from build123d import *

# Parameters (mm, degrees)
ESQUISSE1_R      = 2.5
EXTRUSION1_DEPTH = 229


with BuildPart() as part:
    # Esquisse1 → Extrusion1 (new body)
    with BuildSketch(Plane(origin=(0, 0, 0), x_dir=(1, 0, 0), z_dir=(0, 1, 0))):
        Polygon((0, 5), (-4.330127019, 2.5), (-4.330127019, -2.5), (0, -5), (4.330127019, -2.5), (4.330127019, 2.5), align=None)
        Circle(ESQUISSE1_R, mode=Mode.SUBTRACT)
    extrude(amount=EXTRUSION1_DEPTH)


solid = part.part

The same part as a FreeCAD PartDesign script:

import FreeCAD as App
import Part
import Sketcher

V = App.Vector
Q = App.Units.Quantity

doc = App.newDocument("Part")
body = doc.addObject("PartDesign::Body", "Body")

sketch1 = body.newObject("Sketcher::SketchObject", "Sketch")
sketch1.AttachmentSupport = (doc.getObject("XZ_Plane"), [""])
sketch1.MapMode = "FlatFace"
sketch1.addGeometry([
    Part.LineSegment(V(0, -5, 0), V(-4.330127, -2.5, 0)),
    Part.LineSegment(V(-4.330127, -2.5, 0), V(-4.330127, 2.5, 0)),
    Part.LineSegment(V(-4.330127, 2.5, 0), V(0, 5, 0)),
    Part.LineSegment(V(0, 5, 0), V(4.330127, 2.5, 0)),
    Part.LineSegment(V(4.330127, 2.5, 0), V(4.330127, -2.5, 0)),
    Part.LineSegment(V(4.330127, -2.5, 0), V(0, -5, 0)),
    Part.Circle(V(0, 0, 0), V(0, 0, 1), 2.5),
], False)
sketch1.addConstraint([
    Sketcher.Constraint("Coincident", 0, 2, 1, 1),
    Sketcher.Constraint("Coincident", 1, 2, 2, 1),
    Sketcher.Constraint("Coincident", 2, 2, 3, 1),
    Sketcher.Constraint("Coincident", 3, 2, 4, 1),
    Sketcher.Constraint("Coincident", 4, 2, 5, 1),
    Sketcher.Constraint("Coincident", 5, 2, 0, 1),
    Sketcher.Constraint("Vertical", 1),
    Sketcher.Constraint("Vertical", 4),
    Sketcher.Constraint("Coincident", 6, 3, -1, 1),
    Sketcher.Constraint("Symmetric", 0, 2, 3, 2, -1, 1),
    Sketcher.Constraint("Symmetric", 2, 2, 5, 2, -1, 1),
    Sketcher.Constraint("PointOnObject", 2, 2, -2),
    Sketcher.Constraint("Parallel", 2, 5),
    Sketcher.Constraint("Horizontal", 1, 2, 3, 2),
    Sketcher.Constraint("Diameter", 6, Q("5 mm")),
    Sketcher.Constraint("DistanceY", 1, 1, 1, 2, Q("5 mm")),
    Sketcher.Constraint("Angle", 0, Q("150 deg")),
    Sketcher.Constraint("Distance", 0, Q("5 mm")),
])
pad1 = body.newObject("PartDesign::Pad", "Pad")
pad1.Profile = sketch1
pad1.Length = 229
pad1.Reversed = True

doc.recompute()
